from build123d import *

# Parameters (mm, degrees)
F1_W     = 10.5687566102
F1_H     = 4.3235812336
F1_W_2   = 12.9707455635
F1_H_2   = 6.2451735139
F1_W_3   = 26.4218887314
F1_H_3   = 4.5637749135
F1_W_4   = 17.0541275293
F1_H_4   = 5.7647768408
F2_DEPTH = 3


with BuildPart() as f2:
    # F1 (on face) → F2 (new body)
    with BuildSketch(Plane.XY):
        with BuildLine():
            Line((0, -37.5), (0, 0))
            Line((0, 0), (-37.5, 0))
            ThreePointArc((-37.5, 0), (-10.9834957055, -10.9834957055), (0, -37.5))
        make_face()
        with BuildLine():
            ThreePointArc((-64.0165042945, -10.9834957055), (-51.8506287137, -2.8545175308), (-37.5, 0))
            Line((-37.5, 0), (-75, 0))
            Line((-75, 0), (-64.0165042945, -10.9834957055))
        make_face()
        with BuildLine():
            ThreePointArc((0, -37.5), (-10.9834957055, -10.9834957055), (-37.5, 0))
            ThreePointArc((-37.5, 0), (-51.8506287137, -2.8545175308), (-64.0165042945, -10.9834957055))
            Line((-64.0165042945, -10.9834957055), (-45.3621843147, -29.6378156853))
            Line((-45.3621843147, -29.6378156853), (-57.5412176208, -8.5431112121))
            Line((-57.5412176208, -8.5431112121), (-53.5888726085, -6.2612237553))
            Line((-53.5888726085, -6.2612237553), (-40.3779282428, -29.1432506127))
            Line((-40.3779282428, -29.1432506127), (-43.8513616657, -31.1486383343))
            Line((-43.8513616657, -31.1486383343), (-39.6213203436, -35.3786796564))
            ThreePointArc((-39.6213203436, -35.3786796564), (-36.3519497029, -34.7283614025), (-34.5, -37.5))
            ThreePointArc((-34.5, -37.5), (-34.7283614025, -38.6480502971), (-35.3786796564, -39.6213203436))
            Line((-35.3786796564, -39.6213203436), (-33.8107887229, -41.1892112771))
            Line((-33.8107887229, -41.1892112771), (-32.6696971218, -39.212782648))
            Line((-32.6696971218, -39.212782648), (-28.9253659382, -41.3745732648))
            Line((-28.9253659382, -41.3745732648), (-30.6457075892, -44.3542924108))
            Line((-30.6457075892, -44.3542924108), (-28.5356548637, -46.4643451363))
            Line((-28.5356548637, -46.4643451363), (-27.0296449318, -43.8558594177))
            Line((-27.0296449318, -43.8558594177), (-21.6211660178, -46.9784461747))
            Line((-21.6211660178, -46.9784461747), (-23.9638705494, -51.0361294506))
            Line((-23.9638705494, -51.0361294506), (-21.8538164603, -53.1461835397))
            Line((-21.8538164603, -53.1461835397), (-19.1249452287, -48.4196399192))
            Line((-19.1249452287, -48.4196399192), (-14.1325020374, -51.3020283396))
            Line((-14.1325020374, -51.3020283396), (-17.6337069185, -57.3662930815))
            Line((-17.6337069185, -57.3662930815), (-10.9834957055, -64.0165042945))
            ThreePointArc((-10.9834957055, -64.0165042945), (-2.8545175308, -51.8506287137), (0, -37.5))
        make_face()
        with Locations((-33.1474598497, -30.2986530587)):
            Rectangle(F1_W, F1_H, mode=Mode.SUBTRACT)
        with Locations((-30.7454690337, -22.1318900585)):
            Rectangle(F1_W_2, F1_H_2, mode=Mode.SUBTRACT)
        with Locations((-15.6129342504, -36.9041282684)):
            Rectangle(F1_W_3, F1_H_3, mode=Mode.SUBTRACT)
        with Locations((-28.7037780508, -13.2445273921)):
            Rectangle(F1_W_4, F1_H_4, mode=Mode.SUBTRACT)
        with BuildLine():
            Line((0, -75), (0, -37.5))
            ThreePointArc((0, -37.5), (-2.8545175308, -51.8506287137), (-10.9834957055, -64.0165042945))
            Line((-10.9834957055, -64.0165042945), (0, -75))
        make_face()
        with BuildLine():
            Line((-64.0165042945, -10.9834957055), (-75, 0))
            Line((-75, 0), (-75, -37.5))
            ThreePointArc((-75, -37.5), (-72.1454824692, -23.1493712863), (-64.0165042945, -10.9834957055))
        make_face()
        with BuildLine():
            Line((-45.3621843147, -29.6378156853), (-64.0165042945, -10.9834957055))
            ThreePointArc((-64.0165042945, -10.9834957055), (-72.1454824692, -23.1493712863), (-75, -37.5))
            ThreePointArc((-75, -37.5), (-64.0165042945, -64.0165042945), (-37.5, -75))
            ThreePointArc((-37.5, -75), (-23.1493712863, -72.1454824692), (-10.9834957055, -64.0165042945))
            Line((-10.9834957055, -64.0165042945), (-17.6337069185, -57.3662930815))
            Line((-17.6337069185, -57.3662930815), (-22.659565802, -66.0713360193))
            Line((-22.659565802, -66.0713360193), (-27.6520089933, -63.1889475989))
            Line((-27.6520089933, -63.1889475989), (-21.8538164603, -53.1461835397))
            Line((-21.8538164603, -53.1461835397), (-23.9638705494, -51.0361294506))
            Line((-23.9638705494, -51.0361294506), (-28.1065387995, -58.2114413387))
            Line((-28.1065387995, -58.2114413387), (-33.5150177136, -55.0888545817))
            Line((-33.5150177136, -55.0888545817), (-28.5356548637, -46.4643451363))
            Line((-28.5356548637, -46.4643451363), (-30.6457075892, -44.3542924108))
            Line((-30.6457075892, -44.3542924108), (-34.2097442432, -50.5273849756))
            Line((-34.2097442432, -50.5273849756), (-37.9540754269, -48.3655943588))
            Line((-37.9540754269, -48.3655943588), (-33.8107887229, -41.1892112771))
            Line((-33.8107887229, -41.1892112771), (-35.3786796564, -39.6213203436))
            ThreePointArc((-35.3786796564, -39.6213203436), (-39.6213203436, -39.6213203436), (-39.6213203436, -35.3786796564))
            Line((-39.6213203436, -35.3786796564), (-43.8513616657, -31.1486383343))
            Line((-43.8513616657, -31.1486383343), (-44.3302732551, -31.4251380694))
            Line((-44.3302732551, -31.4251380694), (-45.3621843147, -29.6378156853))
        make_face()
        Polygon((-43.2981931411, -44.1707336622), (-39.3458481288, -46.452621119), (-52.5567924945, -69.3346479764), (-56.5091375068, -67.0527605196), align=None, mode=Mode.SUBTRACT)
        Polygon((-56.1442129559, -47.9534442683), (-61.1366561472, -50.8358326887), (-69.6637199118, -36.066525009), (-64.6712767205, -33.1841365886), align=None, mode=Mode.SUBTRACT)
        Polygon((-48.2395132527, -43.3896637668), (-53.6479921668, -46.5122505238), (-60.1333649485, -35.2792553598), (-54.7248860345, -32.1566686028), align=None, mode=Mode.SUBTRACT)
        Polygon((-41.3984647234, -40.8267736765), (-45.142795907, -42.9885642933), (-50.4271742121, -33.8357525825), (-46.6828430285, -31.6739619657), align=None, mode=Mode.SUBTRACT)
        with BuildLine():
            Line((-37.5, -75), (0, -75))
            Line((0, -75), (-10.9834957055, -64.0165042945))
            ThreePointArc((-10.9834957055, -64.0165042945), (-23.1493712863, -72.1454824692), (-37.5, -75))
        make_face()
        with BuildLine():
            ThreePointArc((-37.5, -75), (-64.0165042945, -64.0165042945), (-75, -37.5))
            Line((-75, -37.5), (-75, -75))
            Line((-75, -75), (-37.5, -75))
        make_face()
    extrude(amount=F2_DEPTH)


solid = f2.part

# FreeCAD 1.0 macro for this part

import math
import FreeCAD as App
import Part
import Sketcher
from FreeCAD import Vector
Q = App.Units.Quantity

doc = App.newDocument("Part")
body = doc.addObject("PartDesign::Body", "Body")

# Sketch on XY plane
sketch1 = body.newObject("Sketcher::SketchObject", "Sketch")
sketch1.AttachmentSupport = (doc.getObject("XY_Plane"), [""])
sketch1.MapMode = "FlatFace"
sketch1.addGeometry([
    Part.LineSegment(Vector(0, 0, 0), Vector(-75, 0, 0)),  # 0
    Part.LineSegment(Vector(-75, 0, 0), Vector(-75, -75, 0)),  # 1
    Part.LineSegment(Vector(-75, -75, 0), Vector(0, -75, 0)),  # 2
    Part.LineSegment(Vector(0, -75, 0), Vector(0, 0, 0)),  # 3
    Part.LineSegment(Vector(-56.509138, -67.052761, 0), Vector(-43.298193, -44.170734, 0)),  # 4
    Part.LineSegment(Vector(-43.298193, -44.170734, 0), Vector(-39.345848, -46.452621, 0)),  # 5
    Part.LineSegment(Vector(-39.345848, -46.452621, 0), Vector(-52.556792, -69.334648, 0)),  # 6
    Part.LineSegment(Vector(-52.556792, -69.334648, 0), Vector(-56.509138, -67.052761, 0)),  # 7
    Part.LineSegment(Vector(-64.671277, -33.184137, 0), Vector(-56.144213, -47.953444, 0)),  # 8
    Part.LineSegment(Vector(-56.144213, -47.953444, 0), Vector(-61.136656, -50.835833, 0)),  # 9
    Part.LineSegment(Vector(-61.136656, -50.835833, 0), Vector(-69.66372, -36.066525, 0)),  # 10
    Part.LineSegment(Vector(-69.66372, -36.066525, 0), Vector(-64.671277, -33.184137, 0)),  # 11
    Part.LineSegment(Vector(-54.724886, -32.156669, 0), Vector(-48.239513, -43.389664, 0)),  # 12
    Part.LineSegment(Vector(-48.239513, -43.389664, 0), Vector(-53.647992, -46.512251, 0)),  # 13
    Part.LineSegment(Vector(-53.647992, -46.512251, 0), Vector(-60.133365, -35.279255, 0)),  # 14
    Part.LineSegment(Vector(-60.133365, -35.279255, 0), Vector(-54.724886, -32.156669, 0)),  # 15
    Part.LineSegment(Vector(-21.853816, -53.146184, 0), Vector(-19.124945, -48.41964, 0)),  # 16
    Part.LineSegment(Vector(-19.124945, -48.41964, 0), Vector(-14.132502, -51.302028, 0)),  # 17
    Part.LineSegment(Vector(-14.132502, -51.302028, 0), Vector(-17.633707, -57.366293, 0)),  # 18
    Part.LineSegment(Vector(-17.633707, -57.366293, 0), Vector(-22.659566, -66.071336, 0)),  # 19
    Part.LineSegment(Vector(-22.659566, -66.071336, 0), Vector(-27.652009, -63.188948, 0)),  # 20
    Part.LineSegment(Vector(-27.652009, -63.188948, 0), Vector(-21.853816, -53.146184, 0)),  # 21
    Part.LineSegment(Vector(-28.535655, -46.464345, 0), Vector(-27.029645, -43.855859, 0)),  # 22
    Part.LineSegment(Vector(-27.029645, -43.855859, 0), Vector(-21.621166, -46.978446, 0)),  # 23
    Part.LineSegment(Vector(-21.621166, -46.978446, 0), Vector(-23.963871, -51.036129, 0)),  # 24
    Part.LineSegment(Vector(-23.963871, -51.036129, 0), Vector(-28.106539, -58.211441, 0)),  # 25
    Part.LineSegment(Vector(-28.106539, -58.211441, 0), Vector(-33.515018, -55.088855, 0)),  # 26
    Part.LineSegment(Vector(-33.515018, -55.088855, 0), Vector(-28.535655, -46.464345, 0)),  # 27
    Part.LineSegment(Vector(-33.810789, -41.189211, 0), Vector(-32.669697, -39.212783, 0)),  # 28
    Part.LineSegment(Vector(-32.669697, -39.212783, 0), Vector(-28.925366, -41.374573, 0)),  # 29
    Part.LineSegment(Vector(-28.925366, -41.374573, 0), Vector(-30.645708, -44.354292, 0)),  # 30
    Part.LineSegment(Vector(-30.645708, -44.354292, 0), Vector(-34.209744, -50.527385, 0)),  # 31
    Part.LineSegment(Vector(-34.209744, -50.527385, 0), Vector(-37.954075, -48.365594, 0)),  # 32
    Part.LineSegment(Vector(-37.954075, -48.365594, 0), Vector(-33.810789, -41.189211, 0)),  # 33
    Part.LineSegment(Vector(-46.682843, -31.673962, 0), Vector(-41.398465, -40.826774, 0)),  # 34
    Part.LineSegment(Vector(-41.398465, -40.826774, 0), Vector(-45.142796, -42.988564, 0)),  # 35
    Part.LineSegment(Vector(-45.142796, -42.988564, 0), Vector(-50.427174, -33.835753, 0)),  # 36
    Part.LineSegment(Vector(-50.427174, -33.835753, 0), Vector(-46.682843, -31.673962, 0)),  # 37
    Part.ArcOfCircle(Part.Circle(Vector(-37.5, -37.5, 0), Vector(0, 0, 1), 3), math.radians(0), math.radians(135)),  # 38
    Part.ArcOfCircle(Part.Circle(Vector(-37.5, -37.5, 0), Vector(0, 0, 1), 3), math.radians(-45), math.radians(0)),  # 39
    Part.ArcOfCircle(Part.Circle(Vector(-37.5, -37.5, 0), Vector(0, 0, 1), 3), math.radians(135), math.radians(315)),  # 40
    Part.LineSegment(Vector(-45.362184, -29.637816, 0), Vector(-57.541218, -8.543111, 0)),  # 41
    Part.LineSegment(Vector(-57.541218, -8.543111, 0), Vector(-53.588873, -6.261224, 0)),  # 42
    Part.LineSegment(Vector(-53.588873, -6.261224, 0), Vector(-40.377928, -29.143251, 0)),  # 43
    Part.LineSegment(Vector(-40.377928, -29.143251, 0), Vector(-43.851362, -31.148638, 0)),  # 44
    Part.LineSegment(Vector(-43.851362, -31.148638, 0), Vector(-44.330273, -31.425138, 0)),  # 45
    Part.LineSegment(Vector(-44.330273, -31.425138, 0), Vector(-45.362184, -29.637816, 0)),  # 46
    Part.LineSegment(Vector(-27.863082, -32.460444, 0), Vector(-38.431838, -32.460444, 0)),  # 47
    Part.LineSegment(Vector(-38.431838, -32.460444, 0), Vector(-38.431838, -28.136862, 0)),  # 48
    Part.LineSegment(Vector(-38.431838, -28.136862, 0), Vector(-27.863082, -28.136862, 0)),  # 49
    Part.LineSegment(Vector(-27.863082, -28.136862, 0), Vector(-27.863082, -32.460444, 0)),  # 50
    Part.LineSegment(Vector(-24.260096, -25.254477, 0), Vector(-37.230842, -25.254477, 0)),  # 51
    Part.LineSegment(Vector(-37.230842, -25.254477, 0), Vector(-37.230842, -19.009303, 0)),  # 52
    Part.LineSegment(Vector(-37.230842, -19.009303, 0), Vector(-24.260096, -19.009303, 0)),  # 53
    Part.LineSegment(Vector(-24.260096, -19.009303, 0), Vector(-24.260096, -25.254477, 0)),  # 54
    Part.LineSegment(Vector(-2.40199, -39.186016, 0), Vector(-28.823879, -39.186016, 0)),  # 55
    Part.LineSegment(Vector(-28.823879, -39.186016, 0), Vector(-28.823879, -34.622241, 0)),  # 56
    Part.LineSegment(Vector(-28.823879, -34.622241, 0), Vector(-2.40199, -34.622241, 0)),  # 57
    Part.LineSegment(Vector(-2.40199, -34.622241, 0), Vector(-2.40199, -39.186016, 0)),  # 58
    Part.LineSegment(Vector(-20.176714, -16.126916, 0), Vector(-37.230842, -16.126916, 0)),  # 59
    Part.LineSegment(Vector(-37.230842, -16.126916, 0), Vector(-37.230842, -10.362139, 0)),  # 60
    Part.LineSegment(Vector(-37.230842, -10.362139, 0), Vector(-20.176714, -10.362139, 0)),  # 61
    Part.LineSegment(Vector(-20.176714, -10.362139, 0), Vector(-20.176714, -16.126916, 0)),  # 62
], False)
sketch1.addConstraint([
    Sketcher.Constraint("Coincident", 0, 2, 1, 1),
    Sketcher.Constraint("Coincident", 1, 2, 2, 1),
    Sketcher.Constraint("Coincident", 2, 2, 3, 1),
    Sketcher.Constraint("Coincident", 3, 2, 0, 1),
    Sketcher.Constraint("Coincident", 4, 2, 5, 1),
    Sketcher.Constraint("Coincident", 5, 2, 6, 1),
    Sketcher.Constraint("Coincident", 6, 2, 7, 1),
    Sketcher.Constraint("Coincident", 7, 2, 4, 1),
    Sketcher.Constraint("Coincident", 8, 2, 9, 1),
    Sketcher.Constraint("Coincident", 9, 2, 10, 1),
    Sketcher.Constraint("Coincident", 10, 2, 11, 1),
    Sketcher.Constraint("Coincident", 11, 2, 8, 1),
    Sketcher.Constraint("Coincident", 12, 2, 13, 1),
    Sketcher.Constraint("Coincident", 13, 2, 14, 1),
    Sketcher.Constraint("Coincident", 14, 2, 15, 1),
    Sketcher.Constraint("Coincident", 15, 2, 12, 1),
    Sketcher.Constraint("Coincident", 16, 2, 17, 1),
    Sketcher.Constraint("Coincident", 17, 2, 18, 1),
    Sketcher.Constraint("Coincident", 18, 2, 19, 1),
    Sketcher.Constraint("Coincident", 19, 2, 20, 1),
    Sketcher.Constraint("Coincident", 20, 2, 21, 1),
    Sketcher.Constraint("Coincident", 21, 2, 16, 1),
    Sketcher.Constraint("Coincident", 22, 2, 23, 1),
    Sketcher.Constraint("Coincident", 23, 2, 24, 1),
    Sketcher.Constraint("Coincident", 24, 2, 25, 1),
    Sketcher.Constraint("Coincident", 25, 2, 26, 1),
    Sketcher.Constraint("Coincident", 26, 2, 27, 1),
    Sketcher.Constraint("Coincident", 27, 2, 22, 1),
    Sketcher.Constraint("Coincident", 28, 2, 29, 1),
    Sketcher.Constraint("Coincident", 29, 2, 30, 1),
    Sketcher.Constraint("Coincident", 30, 2, 31, 1),
    Sketcher.Constraint("Coincident", 31, 2, 32, 1),
    Sketcher.Constraint("Coincident", 32, 2, 33, 1),
    Sketcher.Constraint("Coincident", 33, 2, 28, 1),
    Sketcher.Constraint("Coincident", 34, 2, 35, 1),
    Sketcher.Constraint("Coincident", 35, 2, 36, 1),
    Sketcher.Constraint("Coincident", 36, 2, 37, 1),
    Sketcher.Constraint("Coincident", 37, 2, 34, 1),
    Sketcher.Constraint("Tangent", 38, 1, 39, 2),
    Sketcher.Constraint("Tangent", 39, 1, 40, 2),
    Sketcher.Constraint("Tangent", 40, 1, 38, 2),
    Sketcher.Constraint("Coincident", 41, 2, 42, 1),
    Sketcher.Constraint("Coincident", 42, 2, 43, 1),
    Sketcher.Constraint("Coincident", 43, 2, 44, 1),
    Sketcher.Constraint("Coincident", 44, 2, 45, 1),
    Sketcher.Constraint("Coincident", 45, 2, 46, 1),
    Sketcher.Constraint("Coincident", 46, 2, 41, 1),
    Sketcher.Constraint("Coincident", 47, 2, 48, 1),
    Sketcher.Constraint("Coincident", 48, 2, 49, 1),
    Sketcher.Constraint("Coincident", 49, 2, 50, 1),
    Sketcher.Constraint("Coincident", 50, 2, 47, 1),
    Sketcher.Constraint("Coincident", 51, 2, 52, 1),
    Sketcher.Constraint("Coincident", 52, 2, 53, 1),
    Sketcher.Constraint("Coincident", 53, 2, 54, 1),
    Sketcher.Constraint("Coincident", 54, 2, 51, 1),
    Sketcher.Constraint("Coincident", 55, 2, 56, 1),
    Sketcher.Constraint("Coincident", 56, 2, 57, 1),
    Sketcher.Constraint("Coincident", 57, 2, 58, 1),
    Sketcher.Constraint("Coincident", 58, 2, 55, 1),
    Sketcher.Constraint("Coincident", 59, 2, 60, 1),
    Sketcher.Constraint("Coincident", 60, 2, 61, 1),
    Sketcher.Constraint("Coincident", 61, 2, 62, 1),
    Sketcher.Constraint("Coincident", 62, 2, 59, 1),
    Sketcher.Constraint("Horizontal", 0),
    Sketcher.Constraint("Vertical", 1),
    Sketcher.Constraint("Horizontal", 2),
    Sketcher.Constraint("Vertical", 3),
    Sketcher.Constraint("Horizontal", 47),
    Sketcher.Constraint("Vertical", 48),
    Sketcher.Constraint("Horizontal", 49),
    Sketcher.Constraint("Vertical", 50),
    Sketcher.Constraint("Horizontal", 51),
    Sketcher.Constraint("Vertical", 52),
    Sketcher.Constraint("Horizontal", 53),
    Sketcher.Constraint("Vertical", 54),
    Sketcher.Constraint("Horizontal", 55),
    Sketcher.Constraint("Vertical", 56),
    Sketcher.Constraint("Horizontal", 57),
    Sketcher.Constraint("Vertical", 58),
    Sketcher.Constraint("Horizontal", 59),
    Sketcher.Constraint("Vertical", 60),
    Sketcher.Constraint("Horizontal", 61),
    Sketcher.Constraint("Vertical", 62),
    Sketcher.Constraint("Coincident", 3, 2, -1, 1),
    Sketcher.Constraint("Perpendicular", 4, 5),
    Sketcher.Constraint("Perpendicular", 5, 6),
    Sketcher.Constraint("Perpendicular", 6, 7),
    Sketcher.Constraint("Perpendicular", 8, 9),
    Sketcher.Constraint("Perpendicular", 9, 10),
    Sketcher.Constraint("Perpendicular", 10, 11),
    Sketcher.Constraint("Perpendicular", 11, 12),
    Sketcher.Constraint("Perpendicular", 12, 13),
    Sketcher.Constraint("Perpendicular", 13, 14),
    Sketcher.Constraint("Perpendicular", 14, 15),
    Sketcher.Constraint("Perpendicular", 7, 16),
    Sketcher.Constraint("Perpendicular", 16, 17),
    Sketcher.Constraint("Perpendicular", 17, 18),
    Sketcher.Constraint("Parallel", 18, 19),
    Sketcher.Constraint("Perpendicular", 19, 20),
    Sketcher.Constraint("Perpendicular", 20, 21),
    Sketcher.Constraint("Parallel", 21, 22),
    Sketcher.Constraint("Perpendicular", 22, 23),
    Sketcher.Constraint("Perpendicular", 23, 24),
    Sketcher.Constraint("Parallel", 24, 25),
    Sketcher.Constraint("Perpendicular", 25, 26),
    Sketcher.Constraint("Perpendicular", 26, 27),
    Sketcher.Constraint("Parallel", 27, 28),
    Sketcher.Constraint("Perpendicular", 28, 29),
    Sketcher.Constraint("Perpendicular", 29, 30),
    Sketcher.Constraint("Parallel", 30, 31),
    Sketcher.Constraint("Perpendicular", 31, 32),
    Sketcher.Constraint("Perpendicular", 32, 33),
    Sketcher.Constraint("Perpendicular", 15, 34),
    Sketcher.Constraint("Perpendicular", 34, 35),
    Sketcher.Constraint("Perpendicular", 35, 36),
    Sketcher.Constraint("Perpendicular", 36, 37),
    Sketcher.Constraint("Perpendicular", 37, 41),
    Sketcher.Constraint("Perpendicular", 41, 42),
    Sketcher.Constraint("Perpendicular", 42, 43),
    Sketcher.Constraint("Perpendicular", 43, 44),
    Sketcher.Constraint("Parallel", 44, 45),
    Sketcher.Constraint("Perpendicular", 45, 46),
    Sketcher.Constraint("Horizontal", 40, 3, 38, 1),
    Sketcher.Constraint("Vertical", 52, 2, 59, 2),
    Sketcher.Constraint("Equal", 2, 1),
    Sketcher.Constraint("Equal", 11, 17),
    Sketcher.Constraint("Equal", 15, 23),
    Sketcher.Constraint("Equal", 32, 35),
    Sketcher.Constraint("Equal", 7, 42),
    Sketcher.Constraint("Equal", 6, 43),
    Sketcher.Constraint("Radius", 38, 3.0),
    Sketcher.Constraint("DistanceX", 0, 2, 0, 1, 75.0),
    Sketcher.Constraint("Angle", 4, Q("60 deg")),
    Sketcher.Constraint("Angle", 8, Q("-60 deg")),
    Sketcher.Constraint("DistanceX", 38, 3, -1, 1, 37.5),
    Sketcher.Constraint("DistanceY", 38, 3, -1, 1, 37.5),
    Sketcher.Constraint("Distance", 45, 0.552999),
    Sketcher.Constraint("DistanceX", 55, 2, 55, 1, 26.421889),
    Sketcher.Constraint("DistanceY", 48, 1, 48, 2, 4.323581),
    Sketcher.Constraint("Distance", 4, 26.421889),
    Sketcher.Constraint("Distance", 18, 7.00241),
    Sketcher.Constraint("Distance", 22, 3.01202),
    Sketcher.Constraint("Distance", 24, 4.685409),
    Sketcher.Constraint("Distance", 29, 4.323581),
    Sketcher.Constraint("DistanceX", 47, 2, 47, 1, 10.568757),
    Sketcher.Constraint("DistanceX", 51, 2, 51, 1, 12.970746),
    Sketcher.Constraint("DistanceX", 59, 2, 59, 1, 17.054128),
    Sketcher.Constraint("DistanceY", 52, 1, 52, 2, 6.245174),
    Sketcher.Constraint("DistanceY", 56, 1, 56, 2, 4.563775),
    Sketcher.Constraint("DistanceY", 60, 1, 60, 2, 5.764777),
    Sketcher.Constraint("DistanceX", 5, 2, -1, 1, 39.345848),
    Sketcher.Constraint("DistanceY", 5, 2, -1, 1, 46.452621),
    Sketcher.Constraint("DistanceY", 7, 2, -1, 1, 67.052761),
    Sketcher.Constraint("DistanceX", 10, 2, -1, 1, 69.66372),
    Sketcher.Constraint("DistanceY", 13, 2, -1, 1, 46.512251),
    Sketcher.Constraint("DistanceY", 15, 2, -1, 1, 32.156669),
    Sketcher.Constraint("DistanceY", 16, 2, -1, 1, 48.41964),
    Sketcher.Constraint("DistanceY", 17, 2, -1, 1, 51.302028),
    Sketcher.Constraint("DistanceX", 20, 2, -1, 1, 27.652009),
    Sketcher.Constraint("DistanceY", 22, 2, -1, 1, 43.855859),
    Sketcher.Constraint("DistanceX", 24, 2, -1, 1, 23.963871),
    Sketcher.Constraint("DistanceY", 24, 2, -1, 1, 51.036129),
    Sketcher.Constraint("DistanceX", 25, 2, -1, 1, 28.106539),
    Sketcher.Constraint("DistanceX", 33, 2, -1, 1, 33.810789),
    Sketcher.Constraint("DistanceY", 33, 2, -1, 1, 41.189211),
    Sketcher.Constraint("DistanceY", 37, 2, -1, 1, 31.673962),
    Sketcher.Constraint("DistanceX", 39, 1, -1, 1, 35.37868),
    Sketcher.Constraint("DistanceX", 40, 1, -1, 1, 39.62132),
    Sketcher.Constraint("DistanceY", 41, 2, -1, 1, 8.543111),
    Sketcher.Constraint("DistanceX", 43, 2, -1, 1, 40.377928),
    Sketcher.Constraint("DistanceX", 47, 2, -1, 1, 38.431838),
    Sketcher.Constraint("DistanceX", 51, 2, -1, 1, 37.230842),
    Sketcher.Constraint("DistanceX", 55, 2, -1, 1, 28.823879),
    Sketcher.Constraint("DistanceY", 56, 2, -1, 1, 34.622241),
    Sketcher.Constraint("DistanceY", 60, 2, -1, 1, 10.362139),
    Sketcher.Constraint("Distance", 8, 17.054128),
    Sketcher.Constraint("Distance", 16, 5.457742),
    Sketcher.Constraint("Distance", 19, 10.051718),
    Sketcher.Constraint("Distance", 28, 2.282183),
    Sketcher.Constraint("Distance", 30, 3.440683),
    Sketcher.Constraint("Distance", 31, 7.128073),
    Sketcher.Constraint("Distance", 34, 10.568757),
    Sketcher.Constraint("Distance", 41, 24.358067),
    Sketcher.Constraint("DistanceY", 8, 2, -1, 1, 47.953444),
    Sketcher.Constraint("DistanceX", 12, 2, -1, 1, 48.239513),
    Sketcher.Constraint("DistanceX", 34, 2, -1, 1, 41.398465),
    Sketcher.Constraint("DistanceY", 47, 2, -1, 1, 32.460444),
    Sketcher.Constraint("DistanceY", 51, 2, -1, 1, 25.254477),
])
pad1 = body.newObject("PartDesign::Pad", "Pad")
pad1.Profile = sketch1
pad1.Length = 3

doc.recompute()
